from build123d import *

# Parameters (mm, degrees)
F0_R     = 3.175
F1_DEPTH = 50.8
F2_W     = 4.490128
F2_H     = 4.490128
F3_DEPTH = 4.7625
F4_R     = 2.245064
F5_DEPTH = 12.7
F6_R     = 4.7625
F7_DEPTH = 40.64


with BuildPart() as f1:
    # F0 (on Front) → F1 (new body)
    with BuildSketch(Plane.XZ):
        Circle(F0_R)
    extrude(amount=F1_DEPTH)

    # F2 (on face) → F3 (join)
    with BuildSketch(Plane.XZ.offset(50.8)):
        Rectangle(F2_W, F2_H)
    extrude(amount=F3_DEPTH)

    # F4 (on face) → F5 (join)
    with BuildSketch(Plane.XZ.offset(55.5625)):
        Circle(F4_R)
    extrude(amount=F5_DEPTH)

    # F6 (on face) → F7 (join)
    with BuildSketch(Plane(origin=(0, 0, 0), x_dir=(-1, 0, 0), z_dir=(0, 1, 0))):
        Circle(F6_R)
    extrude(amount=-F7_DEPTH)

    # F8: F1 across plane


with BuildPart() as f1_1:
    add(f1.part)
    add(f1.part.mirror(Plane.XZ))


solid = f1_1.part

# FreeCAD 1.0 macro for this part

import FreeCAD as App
import Part
import Sketcher
from FreeCAD import Vector
Q = App.Units.Quantity

doc = App.newDocument("Part")
params = doc.addObject("Spreadsheet::Sheet", "Params")
for row, (alias, value) in enumerate([
    ("sketch1_diameter", "0.25 in"),
    ("pad1_length", "2 in"),
    ("pad2_length", "0.1875 in"),
    ("pad3_length", "0.5 in"),
    ("sketch4_diameter", "0.375 in"),
    ("pad4_length", "1.6 in"),
], start=1):
    params.set(f"A{row}", alias)
    params.set(f"B{row}", "=" + value)
    params.setAlias(f"B{row}", alias)

body = doc.addObject("PartDesign::Body", "Body")

# Sketch on XZ plane
sketch1 = body.newObject("Sketcher::SketchObject", "Sketch")
sketch1.AttachmentSupport = (doc.getObject("XZ_Plane"), [""])
sketch1.MapMode = "FlatFace"
sketch1.addGeometry(Part.Circle(Vector(0, 0, 0), Vector(0, 0, 1), 3.2), False)
sketch1.addConstraint([
    Sketcher.Constraint("Coincident", 0, 3, -1, 1),
    Sketcher.Constraint("Diameter", 0, Q("0.25 in")),
])
sketch1.setExpression("Constraints[1]", "Params.sketch1_diameter")
pad1 = body.newObject("PartDesign::Pad", "Pad")
pad1.Profile = sketch1
pad1.setExpression("Length", "Params.pad1_length")

# Sketch on XZ plane
sketch2 = body.newObject("Sketcher::SketchObject", "Sketch001")
sketch2.AttachmentSupport = (doc.getObject("XZ_Plane"), [""])
sketch2.MapMode = "FlatFace"
sketch2.AttachmentOffset = App.Placement(Vector(0, 0, 2 * 25.4), App.Rotation())
sketch2.addGeometry([
    Part.LineSegment(Vector(-2.2, 2.2, 0), Vector(-2.2, -2.2, 0)),
    Part.LineSegment(Vector(-2.2, -2.2, 0), Vector(2.2, -2.2, 0)),
    Part.LineSegment(Vector(2.2, -2.2, 0), Vector(2.2, 2.2, 0)),
    Part.LineSegment(Vector(2.2, 2.2, 0), Vector(-2.2, 2.2, 0)),
], False)
sketch2.addConstraint([
    Sketcher.Constraint("Coincident", 0, 2, 1, 1),
    Sketcher.Constraint("Coincident", 1, 2, 2, 1),
    Sketcher.Constraint("Coincident", 2, 2, 3, 1),
    Sketcher.Constraint("Coincident", 3, 2, 0, 1),
    Sketcher.Constraint("Vertical", 0),
    Sketcher.Constraint("Horizontal", 1),
    Sketcher.Constraint("Vertical", 2),
    Sketcher.Constraint("Horizontal", 3),
    Sketcher.Constraint("Symmetric", 0, 2, 2, 2, -1, 1),
    Sketcher.Constraint("Equal", 3, 0),
    Sketcher.Constraint("DistanceX", 1, 1, 1, 2, Q("4.490128 mm")),
])
pad2 = body.newObject("PartDesign::Pad", "Pad001")
pad2.Profile = sketch2
pad2.setExpression("Length", "Params.pad2_length")

# Sketch on XZ plane
sketch3 = body.newObject("Sketcher::SketchObject", "Sketch002")
sketch3.AttachmentSupport = (doc.getObject("XZ_Plane"), [""])
sketch3.MapMode = "FlatFace"
sketch3.AttachmentOffset = App.Placement(Vector(0, 0, 2.1875 * 25.4), App.Rotation())
sketch3.addGeometry(Part.Circle(Vector(0, 0, 0), Vector(0, 0, 1), 2.2), False)
sketch3.addConstraint([
    Sketcher.Constraint("Coincident", 0, 3, -1, 1),
    Sketcher.Constraint("Diameter", 0, Q("4.490128 mm")),
])
pad3 = body.newObject("PartDesign::Pad", "Pad002")
pad3.Profile = sketch3
pad3.setExpression("Length", "Params.pad3_length")

# Sketch on XZ plane
sketch4 = body.newObject("Sketcher::SketchObject", "Sketch003")
sketch4.AttachmentSupport = (doc.getObject("XZ_Plane"), [""])
sketch4.MapMode = "FlatFace"
sketch4.addGeometry(Part.Circle(Vector(0, 0, 0), Vector(0, 0, 1), 4.8), False)
sketch4.addConstraint([
    Sketcher.Constraint("Coincident", 0, 3, -1, 1),
    Sketcher.Constraint("Diameter", 0, Q("0.375 in")),
])
sketch4.setExpression("Constraints[1]", "Params.sketch4_diameter")
pad4 = body.newObject("PartDesign::Pad", "Pad003")
pad4.Profile = sketch4
pad4.setExpression("Length", "Params.pad4_length")
body2 = doc.addObject("PartDesign::Body", "Body001")
doc.recompute()

body2.BaseFeature = body
doc.recompute()

mirroring = doc.addObject("Part::Mirroring", "Mirroring")
mirroring.Source = body
mirroring.Base = Vector(0, 0, 0)
mirroring.Normal = Vector(0, -1, 0)
body3 = doc.addObject("PartDesign::Body", "Body002")
body3.BaseFeature = mirroring
boolean = body2.newObject("PartDesign::Boolean", "Boolean")
boolean.Type = "Fuse"
boolean.addObjects([body3])
doc.recompute()
mirroring.Visibility = False

doc.recompute()
